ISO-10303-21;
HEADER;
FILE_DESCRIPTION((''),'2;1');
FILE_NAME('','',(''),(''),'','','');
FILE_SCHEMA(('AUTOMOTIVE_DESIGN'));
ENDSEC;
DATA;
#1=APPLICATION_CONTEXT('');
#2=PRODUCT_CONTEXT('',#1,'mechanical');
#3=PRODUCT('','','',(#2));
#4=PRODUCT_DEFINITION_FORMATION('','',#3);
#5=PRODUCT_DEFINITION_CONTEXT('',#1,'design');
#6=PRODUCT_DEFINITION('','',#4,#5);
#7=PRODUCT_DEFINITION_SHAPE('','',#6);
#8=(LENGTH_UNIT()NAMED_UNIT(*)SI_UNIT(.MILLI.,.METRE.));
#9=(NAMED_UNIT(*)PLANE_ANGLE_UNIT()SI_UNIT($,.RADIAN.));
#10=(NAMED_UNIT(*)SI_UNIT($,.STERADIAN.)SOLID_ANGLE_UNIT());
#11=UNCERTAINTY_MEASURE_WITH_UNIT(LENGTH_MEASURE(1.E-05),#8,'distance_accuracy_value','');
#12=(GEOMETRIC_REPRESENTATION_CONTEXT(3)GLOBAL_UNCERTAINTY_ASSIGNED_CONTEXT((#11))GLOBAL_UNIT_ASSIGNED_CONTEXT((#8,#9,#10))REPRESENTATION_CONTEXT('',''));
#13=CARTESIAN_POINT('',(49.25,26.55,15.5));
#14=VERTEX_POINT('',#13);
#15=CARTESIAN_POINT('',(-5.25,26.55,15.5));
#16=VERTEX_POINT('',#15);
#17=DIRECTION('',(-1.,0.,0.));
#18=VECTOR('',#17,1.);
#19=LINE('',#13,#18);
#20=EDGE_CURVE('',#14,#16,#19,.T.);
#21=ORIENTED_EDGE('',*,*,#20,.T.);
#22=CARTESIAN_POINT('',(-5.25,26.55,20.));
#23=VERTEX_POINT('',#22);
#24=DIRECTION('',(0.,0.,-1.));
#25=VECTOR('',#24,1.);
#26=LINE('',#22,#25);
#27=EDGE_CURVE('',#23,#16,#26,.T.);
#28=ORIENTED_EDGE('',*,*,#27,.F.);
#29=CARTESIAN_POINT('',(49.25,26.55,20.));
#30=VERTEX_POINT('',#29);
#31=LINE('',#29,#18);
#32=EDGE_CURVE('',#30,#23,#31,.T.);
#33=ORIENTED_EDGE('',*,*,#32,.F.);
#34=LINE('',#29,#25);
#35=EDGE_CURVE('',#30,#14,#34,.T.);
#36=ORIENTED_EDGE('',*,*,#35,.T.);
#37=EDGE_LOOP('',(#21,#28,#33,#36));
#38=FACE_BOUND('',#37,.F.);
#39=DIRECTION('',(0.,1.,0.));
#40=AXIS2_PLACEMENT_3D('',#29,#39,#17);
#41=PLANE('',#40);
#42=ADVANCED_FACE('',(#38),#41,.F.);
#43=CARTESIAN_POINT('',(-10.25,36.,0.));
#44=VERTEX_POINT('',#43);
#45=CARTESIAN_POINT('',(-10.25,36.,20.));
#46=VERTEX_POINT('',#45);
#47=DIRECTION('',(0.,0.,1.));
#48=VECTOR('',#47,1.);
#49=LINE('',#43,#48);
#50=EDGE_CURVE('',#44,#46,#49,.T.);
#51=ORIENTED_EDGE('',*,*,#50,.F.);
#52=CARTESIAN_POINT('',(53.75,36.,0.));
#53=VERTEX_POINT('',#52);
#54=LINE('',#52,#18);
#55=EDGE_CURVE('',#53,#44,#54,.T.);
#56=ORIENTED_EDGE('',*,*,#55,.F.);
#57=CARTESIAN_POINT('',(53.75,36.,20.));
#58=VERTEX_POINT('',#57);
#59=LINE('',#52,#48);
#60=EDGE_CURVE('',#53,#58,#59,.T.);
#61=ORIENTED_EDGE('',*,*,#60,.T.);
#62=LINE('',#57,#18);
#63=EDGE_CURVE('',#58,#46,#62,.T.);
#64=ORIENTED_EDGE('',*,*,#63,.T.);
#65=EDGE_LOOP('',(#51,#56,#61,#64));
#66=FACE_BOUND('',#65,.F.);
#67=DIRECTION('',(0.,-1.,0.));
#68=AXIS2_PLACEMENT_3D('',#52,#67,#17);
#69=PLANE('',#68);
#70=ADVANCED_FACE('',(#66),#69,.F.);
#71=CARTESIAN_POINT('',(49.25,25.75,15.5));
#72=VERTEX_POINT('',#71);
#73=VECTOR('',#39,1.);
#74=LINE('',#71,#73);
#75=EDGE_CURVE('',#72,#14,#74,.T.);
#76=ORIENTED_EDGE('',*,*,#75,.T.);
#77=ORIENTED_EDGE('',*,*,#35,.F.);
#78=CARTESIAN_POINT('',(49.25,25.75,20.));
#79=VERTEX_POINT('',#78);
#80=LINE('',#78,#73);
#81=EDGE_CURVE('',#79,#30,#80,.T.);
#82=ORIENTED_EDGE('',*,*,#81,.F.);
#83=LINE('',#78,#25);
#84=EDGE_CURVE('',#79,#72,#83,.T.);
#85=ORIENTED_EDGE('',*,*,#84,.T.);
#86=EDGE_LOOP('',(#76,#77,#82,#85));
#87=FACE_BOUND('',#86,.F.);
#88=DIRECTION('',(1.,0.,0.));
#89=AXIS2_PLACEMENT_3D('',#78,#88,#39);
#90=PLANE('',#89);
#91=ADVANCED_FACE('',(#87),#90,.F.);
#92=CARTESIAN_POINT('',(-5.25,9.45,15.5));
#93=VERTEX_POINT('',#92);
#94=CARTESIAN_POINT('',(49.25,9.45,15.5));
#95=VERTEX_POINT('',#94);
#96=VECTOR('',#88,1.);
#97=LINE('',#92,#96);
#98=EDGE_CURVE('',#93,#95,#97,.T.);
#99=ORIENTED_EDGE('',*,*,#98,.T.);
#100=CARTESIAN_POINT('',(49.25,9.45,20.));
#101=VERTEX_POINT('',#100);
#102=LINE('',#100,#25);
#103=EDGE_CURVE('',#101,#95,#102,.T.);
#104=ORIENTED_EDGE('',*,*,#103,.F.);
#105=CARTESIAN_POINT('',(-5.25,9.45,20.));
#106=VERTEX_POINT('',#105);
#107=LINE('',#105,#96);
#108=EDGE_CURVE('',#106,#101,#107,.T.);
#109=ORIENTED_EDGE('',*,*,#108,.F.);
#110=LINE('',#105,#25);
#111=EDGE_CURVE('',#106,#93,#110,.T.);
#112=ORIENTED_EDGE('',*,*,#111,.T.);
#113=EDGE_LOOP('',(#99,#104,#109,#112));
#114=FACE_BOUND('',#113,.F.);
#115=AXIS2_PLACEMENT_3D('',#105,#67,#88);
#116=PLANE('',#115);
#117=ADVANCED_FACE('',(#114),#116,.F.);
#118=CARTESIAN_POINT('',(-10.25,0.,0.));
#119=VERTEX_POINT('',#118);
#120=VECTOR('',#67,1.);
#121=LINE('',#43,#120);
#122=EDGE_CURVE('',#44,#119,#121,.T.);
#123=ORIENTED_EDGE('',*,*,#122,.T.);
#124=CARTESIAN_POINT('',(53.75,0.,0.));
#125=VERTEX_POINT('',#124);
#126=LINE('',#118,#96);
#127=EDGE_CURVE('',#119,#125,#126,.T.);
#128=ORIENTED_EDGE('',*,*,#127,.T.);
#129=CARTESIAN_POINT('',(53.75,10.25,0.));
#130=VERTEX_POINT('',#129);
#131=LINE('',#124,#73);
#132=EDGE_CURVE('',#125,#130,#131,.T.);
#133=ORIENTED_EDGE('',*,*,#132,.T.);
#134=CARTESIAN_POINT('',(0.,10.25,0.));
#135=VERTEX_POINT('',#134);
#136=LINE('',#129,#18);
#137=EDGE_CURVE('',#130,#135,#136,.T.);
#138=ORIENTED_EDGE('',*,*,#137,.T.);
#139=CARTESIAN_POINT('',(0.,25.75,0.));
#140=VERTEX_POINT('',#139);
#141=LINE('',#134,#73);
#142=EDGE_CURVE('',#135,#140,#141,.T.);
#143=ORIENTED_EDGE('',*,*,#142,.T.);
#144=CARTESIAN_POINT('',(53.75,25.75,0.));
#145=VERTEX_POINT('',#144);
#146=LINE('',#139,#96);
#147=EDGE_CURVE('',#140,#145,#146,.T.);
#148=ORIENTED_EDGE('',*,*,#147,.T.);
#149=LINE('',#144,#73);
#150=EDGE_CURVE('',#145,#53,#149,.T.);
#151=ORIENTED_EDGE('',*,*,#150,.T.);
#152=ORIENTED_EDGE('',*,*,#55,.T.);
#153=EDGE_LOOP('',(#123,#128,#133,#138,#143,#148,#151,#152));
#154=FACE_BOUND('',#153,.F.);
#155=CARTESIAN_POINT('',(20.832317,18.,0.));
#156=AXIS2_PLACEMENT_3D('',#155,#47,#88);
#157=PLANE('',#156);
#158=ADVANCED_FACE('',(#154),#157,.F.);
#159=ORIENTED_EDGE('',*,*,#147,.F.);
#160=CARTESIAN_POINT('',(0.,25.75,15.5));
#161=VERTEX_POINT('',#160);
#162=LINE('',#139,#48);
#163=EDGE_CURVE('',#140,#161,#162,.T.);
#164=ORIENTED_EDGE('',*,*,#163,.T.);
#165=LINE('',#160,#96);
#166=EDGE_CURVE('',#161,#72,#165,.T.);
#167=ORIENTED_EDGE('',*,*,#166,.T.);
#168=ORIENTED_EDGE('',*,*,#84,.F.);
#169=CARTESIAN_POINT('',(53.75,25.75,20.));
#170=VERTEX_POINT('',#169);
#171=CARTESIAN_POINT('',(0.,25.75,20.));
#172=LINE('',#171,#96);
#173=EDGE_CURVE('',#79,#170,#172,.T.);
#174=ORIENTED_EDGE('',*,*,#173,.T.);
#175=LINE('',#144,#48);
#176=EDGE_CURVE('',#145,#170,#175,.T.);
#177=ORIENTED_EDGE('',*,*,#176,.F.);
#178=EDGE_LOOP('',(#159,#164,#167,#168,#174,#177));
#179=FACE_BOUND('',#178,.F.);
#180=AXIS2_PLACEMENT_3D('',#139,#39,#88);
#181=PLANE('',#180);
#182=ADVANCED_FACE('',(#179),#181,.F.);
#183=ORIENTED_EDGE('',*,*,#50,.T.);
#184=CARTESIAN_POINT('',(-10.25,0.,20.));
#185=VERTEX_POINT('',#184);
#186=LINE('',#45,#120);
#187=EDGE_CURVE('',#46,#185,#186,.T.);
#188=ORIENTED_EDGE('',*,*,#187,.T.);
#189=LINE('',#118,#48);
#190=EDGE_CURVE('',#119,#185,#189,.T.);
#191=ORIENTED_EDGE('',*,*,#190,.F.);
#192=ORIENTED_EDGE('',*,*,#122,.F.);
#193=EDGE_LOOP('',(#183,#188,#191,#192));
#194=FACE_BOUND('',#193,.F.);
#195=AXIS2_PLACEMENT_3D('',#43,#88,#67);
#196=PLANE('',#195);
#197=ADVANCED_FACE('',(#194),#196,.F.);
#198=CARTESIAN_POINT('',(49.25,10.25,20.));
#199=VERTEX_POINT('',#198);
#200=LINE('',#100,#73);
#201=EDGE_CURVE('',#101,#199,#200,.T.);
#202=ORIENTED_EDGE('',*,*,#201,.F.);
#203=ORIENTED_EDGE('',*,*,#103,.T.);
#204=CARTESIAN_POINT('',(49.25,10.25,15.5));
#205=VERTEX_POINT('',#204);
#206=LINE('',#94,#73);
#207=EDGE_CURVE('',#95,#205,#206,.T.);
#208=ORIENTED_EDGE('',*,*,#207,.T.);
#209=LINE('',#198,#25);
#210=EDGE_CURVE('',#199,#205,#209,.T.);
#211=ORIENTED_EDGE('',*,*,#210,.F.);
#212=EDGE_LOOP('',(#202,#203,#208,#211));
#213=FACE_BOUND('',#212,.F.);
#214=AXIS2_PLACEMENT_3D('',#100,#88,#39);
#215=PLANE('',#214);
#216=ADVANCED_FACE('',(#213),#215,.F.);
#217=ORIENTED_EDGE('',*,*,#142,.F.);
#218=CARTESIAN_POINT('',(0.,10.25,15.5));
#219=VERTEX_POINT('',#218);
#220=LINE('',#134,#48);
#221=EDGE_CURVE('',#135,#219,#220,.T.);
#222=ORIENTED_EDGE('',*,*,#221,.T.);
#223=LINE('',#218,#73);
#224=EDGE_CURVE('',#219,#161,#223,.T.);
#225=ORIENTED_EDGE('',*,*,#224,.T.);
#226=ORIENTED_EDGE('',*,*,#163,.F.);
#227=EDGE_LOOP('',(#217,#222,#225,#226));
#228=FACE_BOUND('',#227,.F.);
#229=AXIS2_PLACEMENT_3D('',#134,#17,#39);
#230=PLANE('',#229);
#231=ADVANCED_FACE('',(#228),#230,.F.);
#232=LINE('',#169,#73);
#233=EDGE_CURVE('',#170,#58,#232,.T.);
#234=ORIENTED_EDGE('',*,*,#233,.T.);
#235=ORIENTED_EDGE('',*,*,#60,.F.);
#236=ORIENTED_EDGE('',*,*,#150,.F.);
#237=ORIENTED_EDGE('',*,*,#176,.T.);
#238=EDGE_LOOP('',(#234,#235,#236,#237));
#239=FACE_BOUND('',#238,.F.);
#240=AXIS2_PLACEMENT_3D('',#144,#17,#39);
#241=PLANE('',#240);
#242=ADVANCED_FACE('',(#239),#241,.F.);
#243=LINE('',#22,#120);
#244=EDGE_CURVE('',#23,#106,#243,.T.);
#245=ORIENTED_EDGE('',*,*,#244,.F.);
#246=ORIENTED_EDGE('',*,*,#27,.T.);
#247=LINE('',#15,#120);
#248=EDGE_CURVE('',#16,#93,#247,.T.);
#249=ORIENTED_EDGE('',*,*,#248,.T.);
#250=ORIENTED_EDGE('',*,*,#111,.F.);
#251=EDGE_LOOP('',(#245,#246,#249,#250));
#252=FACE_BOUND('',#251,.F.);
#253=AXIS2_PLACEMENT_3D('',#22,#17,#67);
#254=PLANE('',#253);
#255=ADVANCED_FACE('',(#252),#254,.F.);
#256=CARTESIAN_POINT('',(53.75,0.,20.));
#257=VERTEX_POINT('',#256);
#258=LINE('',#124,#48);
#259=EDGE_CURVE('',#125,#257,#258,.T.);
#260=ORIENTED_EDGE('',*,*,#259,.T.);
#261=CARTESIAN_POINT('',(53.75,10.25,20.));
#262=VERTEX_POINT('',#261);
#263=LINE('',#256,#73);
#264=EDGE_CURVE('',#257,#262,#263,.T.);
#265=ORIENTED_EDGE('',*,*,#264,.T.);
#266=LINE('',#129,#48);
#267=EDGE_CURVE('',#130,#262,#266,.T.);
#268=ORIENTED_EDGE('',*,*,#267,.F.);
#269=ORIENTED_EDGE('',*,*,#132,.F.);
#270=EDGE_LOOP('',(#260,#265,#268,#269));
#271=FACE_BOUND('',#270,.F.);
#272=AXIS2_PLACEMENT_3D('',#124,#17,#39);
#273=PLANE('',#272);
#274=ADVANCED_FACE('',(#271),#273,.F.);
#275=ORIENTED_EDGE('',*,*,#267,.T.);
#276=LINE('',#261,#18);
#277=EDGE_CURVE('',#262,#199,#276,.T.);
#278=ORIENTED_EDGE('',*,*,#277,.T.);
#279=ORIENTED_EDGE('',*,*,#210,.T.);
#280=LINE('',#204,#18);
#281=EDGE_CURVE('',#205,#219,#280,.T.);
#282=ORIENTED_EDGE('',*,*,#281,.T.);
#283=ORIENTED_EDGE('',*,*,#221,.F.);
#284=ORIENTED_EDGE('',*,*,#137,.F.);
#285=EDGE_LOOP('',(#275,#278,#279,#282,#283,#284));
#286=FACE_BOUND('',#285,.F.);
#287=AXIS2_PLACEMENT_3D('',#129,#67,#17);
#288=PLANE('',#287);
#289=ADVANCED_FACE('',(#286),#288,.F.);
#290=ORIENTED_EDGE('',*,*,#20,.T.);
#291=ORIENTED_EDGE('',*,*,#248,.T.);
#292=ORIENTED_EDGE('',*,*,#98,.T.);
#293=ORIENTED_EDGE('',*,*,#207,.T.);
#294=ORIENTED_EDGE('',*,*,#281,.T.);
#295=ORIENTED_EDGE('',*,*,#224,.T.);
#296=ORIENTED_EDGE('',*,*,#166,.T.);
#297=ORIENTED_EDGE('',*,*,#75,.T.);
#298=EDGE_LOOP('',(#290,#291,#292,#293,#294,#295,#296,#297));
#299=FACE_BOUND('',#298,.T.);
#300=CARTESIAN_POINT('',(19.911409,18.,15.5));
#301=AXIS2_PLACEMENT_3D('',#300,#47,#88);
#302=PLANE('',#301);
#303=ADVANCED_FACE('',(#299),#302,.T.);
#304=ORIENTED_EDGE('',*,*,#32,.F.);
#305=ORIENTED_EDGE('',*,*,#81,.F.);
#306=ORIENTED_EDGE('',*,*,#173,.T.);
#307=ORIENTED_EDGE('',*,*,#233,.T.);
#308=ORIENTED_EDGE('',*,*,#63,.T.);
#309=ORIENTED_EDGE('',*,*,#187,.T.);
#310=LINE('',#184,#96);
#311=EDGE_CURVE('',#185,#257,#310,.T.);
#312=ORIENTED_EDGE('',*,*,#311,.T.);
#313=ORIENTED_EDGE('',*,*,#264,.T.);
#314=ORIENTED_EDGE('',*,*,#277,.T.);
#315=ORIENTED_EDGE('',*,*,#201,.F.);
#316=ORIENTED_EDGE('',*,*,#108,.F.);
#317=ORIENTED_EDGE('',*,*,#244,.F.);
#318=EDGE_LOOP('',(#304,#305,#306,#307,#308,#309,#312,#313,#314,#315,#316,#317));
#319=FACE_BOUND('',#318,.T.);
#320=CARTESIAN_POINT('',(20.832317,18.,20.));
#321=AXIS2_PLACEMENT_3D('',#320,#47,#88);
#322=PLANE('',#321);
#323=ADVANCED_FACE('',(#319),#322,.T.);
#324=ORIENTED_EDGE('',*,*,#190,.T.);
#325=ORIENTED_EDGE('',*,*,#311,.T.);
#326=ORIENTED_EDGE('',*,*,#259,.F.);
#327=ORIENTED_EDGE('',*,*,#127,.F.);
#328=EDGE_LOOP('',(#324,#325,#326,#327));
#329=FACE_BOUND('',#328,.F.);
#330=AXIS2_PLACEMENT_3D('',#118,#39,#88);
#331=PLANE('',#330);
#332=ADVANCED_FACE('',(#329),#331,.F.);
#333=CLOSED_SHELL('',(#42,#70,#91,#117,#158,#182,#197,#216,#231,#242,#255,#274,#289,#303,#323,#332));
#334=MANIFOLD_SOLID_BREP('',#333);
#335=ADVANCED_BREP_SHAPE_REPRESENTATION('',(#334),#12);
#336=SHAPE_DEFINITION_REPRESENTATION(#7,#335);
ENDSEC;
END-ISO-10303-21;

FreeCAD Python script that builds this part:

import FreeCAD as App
import Part
import Sketcher

V = App.Vector
Q = App.Units.Quantity


def add_polygon(sketch, points):
    """Adds a closed chain of lines whose ends are joined by coincident constraints."""
    first, n = sketch.GeometryCount, len(points)
    for a, b in zip(points, points[1:] + points[:1]):
        sketch.addGeometry(Part.LineSegment(App.Vector(*a, 0), App.Vector(*b, 0)), False)
    for i in range(n):
        sketch.addConstraint(Sketcher.Constraint("Coincident", first + i, 2, first + (i + 1) % n, 1))

doc = App.newDocument("Part")
params = doc.addObject("Spreadsheet::Sheet", "Params")
for row, (alias, value) in enumerate([
    ("sketch1_width", "64 mm"),
    ("sketch1_height", "36 mm"),
    ("sketch1_height2", "15.5 mm"),
    ("sketch1_width2", "53.75 mm"),
    ("pad1_length", "20 mm"),
    ("sketch2_width", "54.5 mm"),
    ("sketch2_height", "17.1 mm"),
    ("sketch2_height2", "0.8 mm"),
    ("sketch2_width2", "49.25 mm"),
    ("pocket1_length", "4.5 mm"),
], start=1):
    params.set(f"A{row}", alias)
    params.set(f"B{row}", "=" + value)
    params.setAlias(f"B{row}", alias)

body = doc.addObject("PartDesign::Body", "Body")

sketch1 = body.newObject("Sketcher::SketchObject", "Sketch")
sketch1.AttachmentSupport = (doc.getObject("XY_Plane"), [""])
sketch1.MapMode = "FlatFace"
add_polygon(sketch1, [(-10, 0), (54, 0), (54, 10), (0, 10), (0, 26), (54, 26), (54, 36), (-10, 36)])
sketch1.addConstraint([
    Sketcher.Constraint("Horizontal", 0),
    Sketcher.Constraint("Vertical", 1),
    Sketcher.Constraint("Horizontal", 2),
    Sketcher.Constraint("Vertical", 3),
    Sketcher.Constraint("Horizontal", 4),
    Sketcher.Constraint("Vertical", 5),
    Sketcher.Constraint("Horizontal", 6),
    Sketcher.Constraint("Vertical", 7),
    Sketcher.Constraint("PointOnObject", 0, 2, -1),
    Sketcher.Constraint("PointOnObject", 2, 2, -2),
    Sketcher.Constraint("Vertical", 1, 2, 4, 2),
    Sketcher.Constraint("Equal", 1, 5),
    Sketcher.Constraint("DistanceX", 0, 1, 0, 2, Q("64 mm")),
    Sketcher.Constraint("DistanceY", 7, 2, 7, 1, Q("36 mm")),
    Sketcher.Constraint("DistanceY", 3, 1, 3, 2, Q("15.5 mm")),
    Sketcher.Constraint("DistanceX", 2, 2, 2, 1, Q("53.75 mm")),
])
sketch1.setExpression("Constraints[20]", "Params.sketch1_width")
sketch1.setExpression("Constraints[21]", "Params.sketch1_height")
sketch1.setExpression("Constraints[22]", "Params.sketch1_height2")
sketch1.setExpression("Constraints[23]", "Params.sketch1_width2")
pad1 = body.newObject("PartDesign::Pad", "Pad")
pad1.Profile = sketch1
pad1.setExpression("Length", "Params.pad1_length")

sketch2 = body.newObject("Sketcher::SketchObject", "Sketch001")
sketch2.AttachmentSupport = (doc.getObject("XY_Plane"), [""])
sketch2.MapMode = "FlatFace"
sketch2.AttachmentOffset = App.Placement(V(0, 0, 20), App.Rotation())
add_polygon(sketch2, [(49.2, 26.6), (-5.2, 26.6), (-5.2, 9.4), (49.2, 9.4), (49.2, 10.2), (0, 10.2), (0, 25.8), (49.2, 25.8)])
sketch2.addConstraint([
    Sketcher.Constraint("Horizontal", 0),
    Sketcher.Constraint("Vertical", 1),
    Sketcher.Constraint("Horizontal", 2),
    Sketcher.Constraint("Vertical", 3),
    Sketcher.Constraint("Horizontal", 4),
    Sketcher.Constraint("Vertical", 5),
    Sketcher.Constraint("Horizontal", 6),
    Sketcher.Constraint("Vertical", 7),
    Sketcher.Constraint("PointOnObject", 4, 2, -2),
    Sketcher.Constraint("Vertical", 3, 2, 6, 2),
    Sketcher.Constraint("Equal", 3, 7),
    Sketcher.Constraint("DistanceX", 0, 2, 0, 1, Q("54.5 mm")),
    Sketcher.Constraint("DistanceY", 1, 2, 1, 1, Q("17.1 mm")),
    Sketcher.Constraint("DistanceY", 3, 1, 3, 2, Q("0.8 mm")),
    Sketcher.Constraint("DistanceX", 4, 2, 4, 1, Q("49.25 mm")),
    Sketcher.Constraint("DistanceY", -1, 1, 0, 2, Q("26.55 mm")),
])
sketch2.setExpression("Constraints[19]", "Params.sketch2_width")
sketch2.setExpression("Constraints[20]", "Params.sketch2_height")
sketch2.setExpression("Constraints[21]", "Params.sketch2_height2")
sketch2.setExpression("Constraints[22]", "Params.sketch2_width2")
pocket1 = body.newObject("PartDesign::Pocket", "Pocket")
pocket1.Profile = sketch2
pocket1.setExpression("Length", "Params.pocket1_length")

doc.recompute()
